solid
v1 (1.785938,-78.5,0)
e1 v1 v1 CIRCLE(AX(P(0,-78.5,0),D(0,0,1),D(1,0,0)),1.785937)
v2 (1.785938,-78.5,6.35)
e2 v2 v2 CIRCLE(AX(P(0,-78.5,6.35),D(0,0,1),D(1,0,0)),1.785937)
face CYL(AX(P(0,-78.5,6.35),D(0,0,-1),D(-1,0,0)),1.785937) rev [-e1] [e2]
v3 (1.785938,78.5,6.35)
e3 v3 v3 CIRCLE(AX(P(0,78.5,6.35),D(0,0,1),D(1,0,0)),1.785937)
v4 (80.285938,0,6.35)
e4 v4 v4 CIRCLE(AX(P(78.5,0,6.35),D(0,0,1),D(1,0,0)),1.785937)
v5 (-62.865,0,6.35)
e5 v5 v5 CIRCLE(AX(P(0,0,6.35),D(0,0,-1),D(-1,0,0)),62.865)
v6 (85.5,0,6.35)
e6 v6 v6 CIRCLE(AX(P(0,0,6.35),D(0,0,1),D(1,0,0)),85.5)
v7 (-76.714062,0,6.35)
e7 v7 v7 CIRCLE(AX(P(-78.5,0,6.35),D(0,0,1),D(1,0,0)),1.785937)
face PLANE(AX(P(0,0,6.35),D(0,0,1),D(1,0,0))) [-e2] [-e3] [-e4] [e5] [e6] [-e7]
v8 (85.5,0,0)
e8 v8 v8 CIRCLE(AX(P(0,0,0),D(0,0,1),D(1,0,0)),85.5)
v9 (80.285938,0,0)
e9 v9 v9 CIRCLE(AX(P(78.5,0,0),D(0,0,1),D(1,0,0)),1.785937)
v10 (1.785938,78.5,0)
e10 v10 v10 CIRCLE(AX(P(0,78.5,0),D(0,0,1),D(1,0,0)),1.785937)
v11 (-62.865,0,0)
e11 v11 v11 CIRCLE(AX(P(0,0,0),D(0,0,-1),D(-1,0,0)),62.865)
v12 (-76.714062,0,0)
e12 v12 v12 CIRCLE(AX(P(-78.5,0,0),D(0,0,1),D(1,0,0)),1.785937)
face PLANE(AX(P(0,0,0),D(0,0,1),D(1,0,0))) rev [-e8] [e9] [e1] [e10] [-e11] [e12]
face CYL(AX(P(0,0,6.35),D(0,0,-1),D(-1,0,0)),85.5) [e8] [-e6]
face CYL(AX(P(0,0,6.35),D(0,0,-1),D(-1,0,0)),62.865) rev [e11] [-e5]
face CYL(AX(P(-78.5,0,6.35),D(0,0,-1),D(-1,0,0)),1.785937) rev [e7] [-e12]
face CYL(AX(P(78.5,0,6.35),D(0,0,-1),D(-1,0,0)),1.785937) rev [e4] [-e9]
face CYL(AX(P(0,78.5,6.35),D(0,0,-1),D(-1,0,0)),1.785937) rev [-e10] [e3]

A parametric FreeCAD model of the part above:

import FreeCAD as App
import Part
import Sketcher
Q = App.Units.Quantity

doc = App.newDocument("Part")
params = doc.addObject("Spreadsheet::Sheet", "Params")
for row, (alias, value) in enumerate([
    ("sketch1_diameter", "0.140625 in"),
    ("pad1_length", "0.25 in"),
    ("sketch2_diameter", "4.95 in"),
], start=1):
    params.set(f"A{row}", alias)
    params.set(f"B{row}", "=" + value)
    params.setAlias(f"B{row}", alias)

body = doc.addObject("PartDesign::Body", "Body")

# Sketch on XY plane
sketch1 = body.newObject("Sketcher::SketchObject", "Sketch")
sketch1.AttachmentSupport = (doc.getObject("XY_Plane"), [""])
sketch1.MapMode = "FlatFace"
sketch1.addGeometry([
    Part.Circle(App.Vector(0, 0, 0), App.Vector(0, 0, 1), 85.5),  # 0
    Part.Circle(App.Vector(-78.5, 0, 0), App.Vector(0, 0, 1), 1.8),  # 1
    Part.Circle(App.Vector(0, -78.5, 0), App.Vector(0, 0, 1), 1.8),  # 2
    Part.Circle(App.Vector(0, 78.5, 0), App.Vector(0, 0, 1), 1.8),  # 3
    Part.Circle(App.Vector(78.5, 0, 0), App.Vector(0, 0, 1), 1.8),  # 4
], False)
sketch1.addConstraint([
    Sketcher.Constraint("Coincident", 0, 3, -1, 1),
    Sketcher.Constraint("Equal", 1, 2),
    Sketcher.Constraint("Equal", 2, 3),
    Sketcher.Constraint("Equal", 3, 4),
    Sketcher.Constraint("Symmetric", 2, 3, 3, 3, -1, 1),
    Sketcher.Constraint("Symmetric", 1, 3, 4, 3, -1, 1),
    Sketcher.Constraint("PointOnObject", 1, 3, -1),
    Sketcher.Constraint("PointOnObject", 2, 3, -2),
    Sketcher.Constraint("Diameter", 1, Q("0.140625 in")),
    Sketcher.Constraint("Diameter", 0, Q("171 mm")),
    Sketcher.Constraint("DistanceX", 1, 3, -1, 1, Q("78.5 mm")),
    Sketcher.Constraint("DistanceY", 2, 3, -1, 1, Q("78.5 mm")),
])
sketch1.setExpression("Constraints[8]", "Params.sketch1_diameter")
pad1 = body.newObject("PartDesign::Pad", "Pad")
pad1.Profile = sketch1
pad1.setExpression("Length", "Params.pad1_length")

# Sketch on XY plane
sketch2 = body.newObject("Sketcher::SketchObject", "Sketch001")
sketch2.AttachmentSupport = (doc.getObject("XY_Plane"), [""])
sketch2.MapMode = "FlatFace"
sketch2.addGeometry(Part.Circle(App.Vector(0, 0, 0), App.Vector(0, 0, 1), 63), False)
sketch2.addConstraint([
    Sketcher.Constraint("Coincident", 0, 3, -1, 1),
    Sketcher.Constraint("Diameter", 0, Q("4.95 in")),
])
sketch2.setExpression("Constraints[1]", "Params.sketch2_diameter")
pocket1 = body.newObject("PartDesign::Pocket", "Pocket")
pocket1.Profile = sketch2
pocket1.Type = "ThroughAll"
pocket1.Reversed = True

doc.recompute()
